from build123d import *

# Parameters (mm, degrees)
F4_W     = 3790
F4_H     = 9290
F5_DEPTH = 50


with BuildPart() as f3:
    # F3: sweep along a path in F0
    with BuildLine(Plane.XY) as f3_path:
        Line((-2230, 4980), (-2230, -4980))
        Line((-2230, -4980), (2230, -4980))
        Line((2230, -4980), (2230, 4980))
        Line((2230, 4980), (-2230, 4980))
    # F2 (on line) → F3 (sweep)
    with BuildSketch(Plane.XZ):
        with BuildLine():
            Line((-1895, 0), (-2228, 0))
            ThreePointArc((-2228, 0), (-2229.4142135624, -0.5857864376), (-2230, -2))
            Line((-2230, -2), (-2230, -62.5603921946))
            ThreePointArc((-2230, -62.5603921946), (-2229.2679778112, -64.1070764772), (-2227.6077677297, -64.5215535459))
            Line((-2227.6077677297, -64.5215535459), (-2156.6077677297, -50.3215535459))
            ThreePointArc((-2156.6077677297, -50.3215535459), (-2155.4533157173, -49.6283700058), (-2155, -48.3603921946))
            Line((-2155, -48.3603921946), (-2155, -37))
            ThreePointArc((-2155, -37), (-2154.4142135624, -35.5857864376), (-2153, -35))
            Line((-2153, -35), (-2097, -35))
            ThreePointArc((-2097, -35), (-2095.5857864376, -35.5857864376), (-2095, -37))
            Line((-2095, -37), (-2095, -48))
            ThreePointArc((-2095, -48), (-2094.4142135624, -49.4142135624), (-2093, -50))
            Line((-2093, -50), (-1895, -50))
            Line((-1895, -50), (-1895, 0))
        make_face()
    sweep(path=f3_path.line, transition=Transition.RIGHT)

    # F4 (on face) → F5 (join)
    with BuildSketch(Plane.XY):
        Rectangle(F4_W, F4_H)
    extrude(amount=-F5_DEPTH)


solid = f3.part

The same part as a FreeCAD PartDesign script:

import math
import FreeCAD as App
import Part
import Sketcher
Q = App.Units.Quantity

doc = App.newDocument("Part")
body = doc.addObject("PartDesign::Body", "Body")

# Sketch on XZ plane
sketch1 = doc.addObject("Sketcher::SketchObject", "Sketch")
body.addObject(sketch1)
sketch1.AttachmentSupport = (doc.XZ_Plane, [""])
sketch1.MapMode = "FlatFace"
sketch1.addGeometry([
    Part.LineSegment(App.Vector(-1895, 0, 0), App.Vector(-2228, 0, 0)),  # 0
    Part.ArcOfCircle(Part.Circle(App.Vector(-2228, -2, 0), App.Vector(0, 0, 1), 2), math.radians(90), math.radians(180)),  # 1
    Part.LineSegment(App.Vector(-2230, -2, 0), App.Vector(-2230, -62.6, 0)),  # 2
    Part.ArcOfCircle(Part.Circle(App.Vector(-2228, -62.6, 0), App.Vector(0, 0, 1), 2), math.radians(180), math.radians(281)),  # 3
    Part.LineSegment(App.Vector(-2227.6, -64.5, 0), App.Vector(-2156.6, -50.3, 0)),  # 4
    Part.ArcOfCircle(Part.Circle(App.Vector(-2157, -48.4, 0), App.Vector(0, 0, 1), 2), math.radians(-79), math.radians(0)),  # 5
    Part.LineSegment(App.Vector(-2155, -48.4, 0), App.Vector(-2155, -37, 0)),  # 6
    Part.ArcOfCircle(Part.Circle(App.Vector(-2153, -37, 0), App.Vector(0, 0, 1), 2), math.radians(90), math.radians(180)),  # 7
    Part.LineSegment(App.Vector(-2153, -35, 0), App.Vector(-2097, -35, 0)),  # 8
    Part.ArcOfCircle(Part.Circle(App.Vector(-2097, -37, 0), App.Vector(0, 0, 1), 2), math.radians(0), math.radians(90)),  # 9
    Part.LineSegment(App.Vector(-2095, -37, 0), App.Vector(-2095, -48, 0)),  # 10
    Part.ArcOfCircle(Part.Circle(App.Vector(-2093, -48, 0), App.Vector(0, 0, 1), 2), math.radians(180), math.radians(270)),  # 11
    Part.LineSegment(App.Vector(-2093, -50, 0), App.Vector(-1895, -50, 0)),  # 12
    Part.LineSegment(App.Vector(-1895, -50, 0), App.Vector(-1895, 0, 0)),  # 13
], False)
sketch1.addConstraint([
    Sketcher.Constraint("Tangent", 0, 2, 1, 1),
    Sketcher.Constraint("Tangent", 1, 2, 2, 1),
    Sketcher.Constraint("Tangent", 2, 2, 3, 1),
    Sketcher.Constraint("Tangent", 3, 2, 4, 1),
    Sketcher.Constraint("Tangent", 4, 2, 5, 1),
    Sketcher.Constraint("Tangent", 5, 2, 6, 1),
    Sketcher.Constraint("Tangent", 6, 2, 7, 2),
    Sketcher.Constraint("Tangent", 7, 1, 8, 1),
    Sketcher.Constraint("Tangent", 8, 2, 9, 2),
    Sketcher.Constraint("Tangent", 9, 1, 10, 1),
    Sketcher.Constraint("Tangent", 10, 2, 11, 1),
    Sketcher.Constraint("Tangent", 11, 2, 12, 1),
    Sketcher.Constraint("Coincident", 12, 2, 13, 1),
    Sketcher.Constraint("Coincident", 13, 2, 0, 1),
    Sketcher.Constraint("Horizontal", 0),
    Sketcher.Constraint("Vertical", 2),
    Sketcher.Constraint("Vertical", 6),
    Sketcher.Constraint("Horizontal", 8),
    Sketcher.Constraint("Vertical", 10),
    Sketcher.Constraint("Horizontal", 12),
    Sketcher.Constraint("Vertical", 13),
    Sketcher.Constraint("Equal", 1, 3),
    Sketcher.Constraint("Equal", 3, 5),
    Sketcher.Constraint("Equal", 5, 7),
    Sketcher.Constraint("Equal", 7, 9),
    Sketcher.Constraint("Equal", 9, 11),
    Sketcher.Constraint("PointOnObject", 0, 2, -1),
    Sketcher.Constraint("Radius", 1, Q("2 mm")),
    Sketcher.Constraint("DistanceX", 0, 2, 0, 1, Q("333 mm")),
    Sketcher.Constraint("DistanceX", 8, 1, 8, 2, Q("56 mm")),
    Sketcher.Constraint("DistanceX", 12, 1, 12, 2, Q("198 mm")),
    Sketcher.Constraint("DistanceY", 10, 2, 10, 1, Q("11 mm")),
    Sketcher.Constraint("DistanceY", 13, 1, 13, 2, Q("50 mm")),
    Sketcher.Constraint("DistanceX", 1, 3, -1, 1, Q("2228 mm")),
    Sketcher.Constraint("DistanceY", 3, 3, 5, 3, Q("14.2 mm")),
    Sketcher.Constraint("DistanceY", 2, 2, 2, 1, Q("60.560392 mm")),
])

# Sketch on XY plane
sketch2 = doc.addObject("Sketcher::SketchObject", "Sketch001")
body.addObject(sketch2)
sketch2.AttachmentSupport = (doc.XY_Plane, [""])
sketch2.MapMode = "FlatFace"
sketch2.addGeometry([
    Part.LineSegment(App.Vector(-2230, 4980, 0), App.Vector(-2230, -4980, 0)),
    Part.LineSegment(App.Vector(-2230, -4980, 0), App.Vector(2230, -4980, 0)),
    Part.LineSegment(App.Vector(2230, -4980, 0), App.Vector(2230, 4980, 0)),
    Part.LineSegment(App.Vector(2230, 4980, 0), App.Vector(-2230, 4980, 0)),
], False)
sketch2.addConstraint([
    Sketcher.Constraint("Coincident", 0, 2, 1, 1),
    Sketcher.Constraint("Coincident", 1, 2, 2, 1),
    Sketcher.Constraint("Coincident", 2, 2, 3, 1),
    Sketcher.Constraint("Coincident", 3, 2, 0, 1),
    Sketcher.Constraint("Vertical", 0),
    Sketcher.Constraint("Horizontal", 1),
    Sketcher.Constraint("Vertical", 2),
    Sketcher.Constraint("Horizontal", 3),
    Sketcher.Constraint("Symmetric", 0, 2, 2, 2, -1, 1),
    Sketcher.Constraint("DistanceX", 1, 1, 1, 2, Q("4460 mm")),
    Sketcher.Constraint("DistanceY", 0, 2, 0, 1, Q("9960 mm")),
])
doc.recompute()

additivepipe = doc.addObject("PartDesign::AdditivePipe", "AdditivePipe")
body.addObject(additivepipe)
additivepipe.Profile = sketch1
additivepipe.Spine = (sketch2, ["Edge1", "Edge2", "Edge3", "Edge4"])
additivepipe.Transition = "Right corner"

# Sketch on XY plane
sketch3 = doc.addObject("Sketcher::SketchObject", "Sketch002")
body.addObject(sketch3)
sketch3.AttachmentSupport = (doc.XY_Plane, [""])
sketch3.MapMode = "FlatFace"
sketch3.addGeometry([
    Part.LineSegment(App.Vector(-1895, 4645, 0), App.Vector(-1895, -4645, 0)),
    Part.LineSegment(App.Vector(-1895, -4645, 0), App.Vector(1895, -4645, 0)),
    Part.LineSegment(App.Vector(1895, -4645, 0), App.Vector(1895, 4645, 0)),
    Part.LineSegment(App.Vector(1895, 4645, 0), App.Vector(-1895, 4645, 0)),
], False)
sketch3.addConstraint([
    Sketcher.Constraint("Coincident", 0, 2, 1, 1),
    Sketcher.Constraint("Coincident", 1, 2, 2, 1),
    Sketcher.Constraint("Coincident", 2, 2, 3, 1),
    Sketcher.Constraint("Coincident", 3, 2, 0, 1),
    Sketcher.Constraint("Vertical", 0),
    Sketcher.Constraint("Horizontal", 1),
    Sketcher.Constraint("Vertical", 2),
    Sketcher.Constraint("Horizontal", 3),
    Sketcher.Constraint("Symmetric", 0, 2, 2, 2, -1, 1),
    Sketcher.Constraint("DistanceX", 1, 1, 1, 2, Q("3790 mm")),
    Sketcher.Constraint("DistanceY", 0, 2, 0, 1, Q("9290 mm")),
])
pad1 = doc.addObject("PartDesign::Pad", "Pad")
body.addObject(pad1)
pad1.Profile = sketch3
pad1.Length = 50
pad1.Reversed = True

doc.recompute()
